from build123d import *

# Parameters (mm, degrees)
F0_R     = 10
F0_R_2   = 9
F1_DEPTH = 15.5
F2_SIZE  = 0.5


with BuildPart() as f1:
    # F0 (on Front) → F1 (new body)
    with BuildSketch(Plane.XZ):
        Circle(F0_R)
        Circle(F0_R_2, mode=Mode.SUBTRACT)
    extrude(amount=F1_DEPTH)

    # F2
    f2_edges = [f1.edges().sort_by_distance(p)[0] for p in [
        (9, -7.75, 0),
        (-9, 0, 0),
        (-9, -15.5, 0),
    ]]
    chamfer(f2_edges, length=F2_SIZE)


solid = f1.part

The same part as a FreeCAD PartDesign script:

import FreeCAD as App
import Part
import Sketcher
from FreeCAD import Vector
Q = App.Units.Quantity


def edges_at(feature, points):
    """Names of the edges that pass closest to the given points."""
    edges = feature.Shape.Edges
    near = lambda p: min(range(len(edges)), key=lambda i: edges[i].distToShape(Part.Vertex(*p))[0])
    return sorted({f"Edge{near(p) + 1}" for p in points})

doc = App.newDocument("Part")
body = doc.addObject("PartDesign::Body", "Body")

sketch1 = body.newObject("Sketcher::SketchObject", "Sketch")
sketch1.AttachmentSupport = (doc.getObject("XZ_Plane"), [""])
sketch1.MapMode = "FlatFace"
sketch1.addGeometry(Part.Circle(Vector(0, 0, 0), Vector(0, 0, 1), 10), False)
sketch1.addGeometry(Part.Circle(Vector(0, 0, 0), Vector(0, 0, 1), 9), False)
sketch1.addConstraint(Sketcher.Constraint("Coincident", 0, 3, -1, 1))
sketch1.addConstraint(Sketcher.Constraint("Coincident", 1, 3, -1, 1))
sketch1.addConstraint(Sketcher.Constraint("Diameter", 0, Q("20 mm")))
sketch1.addConstraint(Sketcher.Constraint("Diameter", 1, Q("18 mm")))
pad1 = body.newObject("PartDesign::Pad", "Pad")
pad1.Profile = sketch1
pad1.Length = 15.5
doc.recompute()

chamfer = body.newObject("PartDesign::Chamfer", "Chamfer")
chamfer.Base = (pad1, edges_at(pad1, [(9, -7.75, 0), (-9, 0, 0), (-9, -15.5, 0)]))
chamfer.Size = 0.5

doc.recompute()
